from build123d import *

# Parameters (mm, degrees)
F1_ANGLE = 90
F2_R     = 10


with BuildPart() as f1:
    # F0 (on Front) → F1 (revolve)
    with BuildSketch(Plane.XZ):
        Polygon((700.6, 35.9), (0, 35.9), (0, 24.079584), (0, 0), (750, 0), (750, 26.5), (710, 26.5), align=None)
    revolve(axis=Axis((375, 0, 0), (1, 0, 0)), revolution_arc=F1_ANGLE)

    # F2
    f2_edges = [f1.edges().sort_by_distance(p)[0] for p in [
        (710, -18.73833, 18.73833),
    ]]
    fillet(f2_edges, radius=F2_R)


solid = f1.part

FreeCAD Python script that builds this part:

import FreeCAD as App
import Part
import Sketcher
Q = App.Units.Quantity


def edges_at(feature, points):
    """Names of the edges that pass closest to the given points."""
    edges = feature.Shape.Edges
    near = lambda p: min(range(len(edges)), key=lambda i: edges[i].distToShape(Part.Vertex(*p))[0])
    return sorted({f"Edge{near(p) + 1}" for p in points})


def add_polygon(sketch, points):
    """Adds a closed chain of lines whose ends are joined by coincident constraints."""
    first, n = sketch.GeometryCount, len(points)
    for a, b in zip(points, points[1:] + points[:1]):
        sketch.addGeometry(Part.LineSegment(App.Vector(*a, 0), App.Vector(*b, 0)), False)
    for i in range(n):
        sketch.addConstraint(Sketcher.Constraint("Coincident", first + i, 2, first + (i + 1) % n, 1))

doc = App.newDocument("Part")
params = doc.addObject("Spreadsheet::Sheet", "Params")
for row, (alias, value) in enumerate([
    ("sketch1_width", "750 mm"),
    ("sketch1_width2", "40 mm"),
    ("sketch1_width3", "700.6 mm"),
    ("sketch1_height", "35.9 mm"),
    ("revolution_angle", "90 deg"),
    ("fillet_radius", "10 mm"),
], start=1):
    params.set(f"A{row}", alias)
    params.set(f"B{row}", "=" + value)
    params.setAlias(f"B{row}", alias)

body = doc.addObject("PartDesign::Body", "Body")

sketch1 = body.newObject("Sketcher::SketchObject", "Sketch")
sketch1.AttachmentSupport = (doc.getObject("XZ_Plane"), [""])
sketch1.MapMode = "FlatFace"
add_polygon(sketch1, [(700.6, 35.9), (0, 35.9), (0, 0), (750, 0), (750, 26.5), (710, 26.5)])
sketch1.addConstraint(Sketcher.Constraint("Horizontal", 0))
sketch1.addConstraint(Sketcher.Constraint("Vertical", 1))
sketch1.addConstraint(Sketcher.Constraint("Horizontal", 2))
sketch1.addConstraint(Sketcher.Constraint("Vertical", 3))
sketch1.addConstraint(Sketcher.Constraint("Horizontal", 4))
sketch1.addConstraint(Sketcher.Constraint("Coincident", 1, 2, -1, 1))
sketch1.addConstraint(Sketcher.Constraint("DistanceX", 2, 1, 2, 2, Q("750 mm")))
sketch1.addConstraint(Sketcher.Constraint("DistanceX", 4, 2, 4, 1, Q("40 mm")))
sketch1.addConstraint(Sketcher.Constraint("Angle", 5, Q("135 deg")))
sketch1.addConstraint(Sketcher.Constraint("DistanceX", 0, 2, 0, 1, Q("700.6 mm")))
sketch1.addConstraint(Sketcher.Constraint("DistanceY", 1, 2, 1, 1, Q("35.9 mm")))
sketch1.setExpression("Constraints[12]", "Params.sketch1_width")
sketch1.setExpression("Constraints[13]", "Params.sketch1_width2")
sketch1.setExpression("Constraints[15]", "Params.sketch1_width3")
sketch1.setExpression("Constraints[16]", "Params.sketch1_height")
revolution = body.newObject("PartDesign::Revolution", "Revolution")
revolution.Profile = sketch1
revolution.ReferenceAxis = (sketch1, ["H_Axis"])
revolution.setExpression("Angle", "Params.revolution_angle")
doc.recompute()

fillet = body.newObject("PartDesign::Fillet", "Fillet")
fillet.Base = (revolution, edges_at(revolution, [(710, -18.738, 18.738)]))
fillet.setExpression("Radius", "Params.fillet_radius")

doc.recompute()
